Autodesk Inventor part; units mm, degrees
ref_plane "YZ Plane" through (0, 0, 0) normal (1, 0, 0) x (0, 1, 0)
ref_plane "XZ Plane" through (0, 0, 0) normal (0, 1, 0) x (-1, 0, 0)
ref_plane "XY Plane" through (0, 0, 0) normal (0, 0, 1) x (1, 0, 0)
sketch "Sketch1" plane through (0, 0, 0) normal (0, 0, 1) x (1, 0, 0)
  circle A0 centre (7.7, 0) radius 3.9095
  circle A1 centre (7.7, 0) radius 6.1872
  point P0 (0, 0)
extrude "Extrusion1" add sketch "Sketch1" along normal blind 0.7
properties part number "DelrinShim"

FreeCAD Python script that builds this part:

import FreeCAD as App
import Part
import Sketcher

V = App.Vector
Q = App.Units.Quantity

doc = App.newDocument("Part")
body = doc.addObject("PartDesign::Body", "Body")

# Sketch on XY plane
sketch1 = doc.addObject("Sketcher::SketchObject", "Sketch")
body.addObject(sketch1)
sketch1.AttachmentSupport = (doc.XY_Plane, [""])
sketch1.MapMode = "FlatFace"
sketch1.addGeometry(Part.Circle(V(7.7, 0, 0), V(0, 0, 1), 6.1872), False)
sketch1.addGeometry(Part.Circle(V(7.7, 0, 0), V(0, 0, 1), 3.9095), False)
sketch1.addConstraint(Sketcher.Constraint("Coincident", 1, 3, 0, 3))
sketch1.addConstraint(Sketcher.Constraint("PointOnObject", 0, 3, -1))
sketch1.addConstraint(Sketcher.Constraint("Diameter", 1, Q("7.819 mm")))
sketch1.addConstraint(Sketcher.Constraint("Diameter", 0, Q("12.3744 mm")))
sketch1.addConstraint(Sketcher.Constraint("DistanceX", -1, 1, 0, 3, Q("7.7 mm")))
pad1 = doc.addObject("PartDesign::Pad", "Pad")
body.addObject(pad1)
pad1.Profile = sketch1
pad1.Length = 0.7

doc.recompute()
